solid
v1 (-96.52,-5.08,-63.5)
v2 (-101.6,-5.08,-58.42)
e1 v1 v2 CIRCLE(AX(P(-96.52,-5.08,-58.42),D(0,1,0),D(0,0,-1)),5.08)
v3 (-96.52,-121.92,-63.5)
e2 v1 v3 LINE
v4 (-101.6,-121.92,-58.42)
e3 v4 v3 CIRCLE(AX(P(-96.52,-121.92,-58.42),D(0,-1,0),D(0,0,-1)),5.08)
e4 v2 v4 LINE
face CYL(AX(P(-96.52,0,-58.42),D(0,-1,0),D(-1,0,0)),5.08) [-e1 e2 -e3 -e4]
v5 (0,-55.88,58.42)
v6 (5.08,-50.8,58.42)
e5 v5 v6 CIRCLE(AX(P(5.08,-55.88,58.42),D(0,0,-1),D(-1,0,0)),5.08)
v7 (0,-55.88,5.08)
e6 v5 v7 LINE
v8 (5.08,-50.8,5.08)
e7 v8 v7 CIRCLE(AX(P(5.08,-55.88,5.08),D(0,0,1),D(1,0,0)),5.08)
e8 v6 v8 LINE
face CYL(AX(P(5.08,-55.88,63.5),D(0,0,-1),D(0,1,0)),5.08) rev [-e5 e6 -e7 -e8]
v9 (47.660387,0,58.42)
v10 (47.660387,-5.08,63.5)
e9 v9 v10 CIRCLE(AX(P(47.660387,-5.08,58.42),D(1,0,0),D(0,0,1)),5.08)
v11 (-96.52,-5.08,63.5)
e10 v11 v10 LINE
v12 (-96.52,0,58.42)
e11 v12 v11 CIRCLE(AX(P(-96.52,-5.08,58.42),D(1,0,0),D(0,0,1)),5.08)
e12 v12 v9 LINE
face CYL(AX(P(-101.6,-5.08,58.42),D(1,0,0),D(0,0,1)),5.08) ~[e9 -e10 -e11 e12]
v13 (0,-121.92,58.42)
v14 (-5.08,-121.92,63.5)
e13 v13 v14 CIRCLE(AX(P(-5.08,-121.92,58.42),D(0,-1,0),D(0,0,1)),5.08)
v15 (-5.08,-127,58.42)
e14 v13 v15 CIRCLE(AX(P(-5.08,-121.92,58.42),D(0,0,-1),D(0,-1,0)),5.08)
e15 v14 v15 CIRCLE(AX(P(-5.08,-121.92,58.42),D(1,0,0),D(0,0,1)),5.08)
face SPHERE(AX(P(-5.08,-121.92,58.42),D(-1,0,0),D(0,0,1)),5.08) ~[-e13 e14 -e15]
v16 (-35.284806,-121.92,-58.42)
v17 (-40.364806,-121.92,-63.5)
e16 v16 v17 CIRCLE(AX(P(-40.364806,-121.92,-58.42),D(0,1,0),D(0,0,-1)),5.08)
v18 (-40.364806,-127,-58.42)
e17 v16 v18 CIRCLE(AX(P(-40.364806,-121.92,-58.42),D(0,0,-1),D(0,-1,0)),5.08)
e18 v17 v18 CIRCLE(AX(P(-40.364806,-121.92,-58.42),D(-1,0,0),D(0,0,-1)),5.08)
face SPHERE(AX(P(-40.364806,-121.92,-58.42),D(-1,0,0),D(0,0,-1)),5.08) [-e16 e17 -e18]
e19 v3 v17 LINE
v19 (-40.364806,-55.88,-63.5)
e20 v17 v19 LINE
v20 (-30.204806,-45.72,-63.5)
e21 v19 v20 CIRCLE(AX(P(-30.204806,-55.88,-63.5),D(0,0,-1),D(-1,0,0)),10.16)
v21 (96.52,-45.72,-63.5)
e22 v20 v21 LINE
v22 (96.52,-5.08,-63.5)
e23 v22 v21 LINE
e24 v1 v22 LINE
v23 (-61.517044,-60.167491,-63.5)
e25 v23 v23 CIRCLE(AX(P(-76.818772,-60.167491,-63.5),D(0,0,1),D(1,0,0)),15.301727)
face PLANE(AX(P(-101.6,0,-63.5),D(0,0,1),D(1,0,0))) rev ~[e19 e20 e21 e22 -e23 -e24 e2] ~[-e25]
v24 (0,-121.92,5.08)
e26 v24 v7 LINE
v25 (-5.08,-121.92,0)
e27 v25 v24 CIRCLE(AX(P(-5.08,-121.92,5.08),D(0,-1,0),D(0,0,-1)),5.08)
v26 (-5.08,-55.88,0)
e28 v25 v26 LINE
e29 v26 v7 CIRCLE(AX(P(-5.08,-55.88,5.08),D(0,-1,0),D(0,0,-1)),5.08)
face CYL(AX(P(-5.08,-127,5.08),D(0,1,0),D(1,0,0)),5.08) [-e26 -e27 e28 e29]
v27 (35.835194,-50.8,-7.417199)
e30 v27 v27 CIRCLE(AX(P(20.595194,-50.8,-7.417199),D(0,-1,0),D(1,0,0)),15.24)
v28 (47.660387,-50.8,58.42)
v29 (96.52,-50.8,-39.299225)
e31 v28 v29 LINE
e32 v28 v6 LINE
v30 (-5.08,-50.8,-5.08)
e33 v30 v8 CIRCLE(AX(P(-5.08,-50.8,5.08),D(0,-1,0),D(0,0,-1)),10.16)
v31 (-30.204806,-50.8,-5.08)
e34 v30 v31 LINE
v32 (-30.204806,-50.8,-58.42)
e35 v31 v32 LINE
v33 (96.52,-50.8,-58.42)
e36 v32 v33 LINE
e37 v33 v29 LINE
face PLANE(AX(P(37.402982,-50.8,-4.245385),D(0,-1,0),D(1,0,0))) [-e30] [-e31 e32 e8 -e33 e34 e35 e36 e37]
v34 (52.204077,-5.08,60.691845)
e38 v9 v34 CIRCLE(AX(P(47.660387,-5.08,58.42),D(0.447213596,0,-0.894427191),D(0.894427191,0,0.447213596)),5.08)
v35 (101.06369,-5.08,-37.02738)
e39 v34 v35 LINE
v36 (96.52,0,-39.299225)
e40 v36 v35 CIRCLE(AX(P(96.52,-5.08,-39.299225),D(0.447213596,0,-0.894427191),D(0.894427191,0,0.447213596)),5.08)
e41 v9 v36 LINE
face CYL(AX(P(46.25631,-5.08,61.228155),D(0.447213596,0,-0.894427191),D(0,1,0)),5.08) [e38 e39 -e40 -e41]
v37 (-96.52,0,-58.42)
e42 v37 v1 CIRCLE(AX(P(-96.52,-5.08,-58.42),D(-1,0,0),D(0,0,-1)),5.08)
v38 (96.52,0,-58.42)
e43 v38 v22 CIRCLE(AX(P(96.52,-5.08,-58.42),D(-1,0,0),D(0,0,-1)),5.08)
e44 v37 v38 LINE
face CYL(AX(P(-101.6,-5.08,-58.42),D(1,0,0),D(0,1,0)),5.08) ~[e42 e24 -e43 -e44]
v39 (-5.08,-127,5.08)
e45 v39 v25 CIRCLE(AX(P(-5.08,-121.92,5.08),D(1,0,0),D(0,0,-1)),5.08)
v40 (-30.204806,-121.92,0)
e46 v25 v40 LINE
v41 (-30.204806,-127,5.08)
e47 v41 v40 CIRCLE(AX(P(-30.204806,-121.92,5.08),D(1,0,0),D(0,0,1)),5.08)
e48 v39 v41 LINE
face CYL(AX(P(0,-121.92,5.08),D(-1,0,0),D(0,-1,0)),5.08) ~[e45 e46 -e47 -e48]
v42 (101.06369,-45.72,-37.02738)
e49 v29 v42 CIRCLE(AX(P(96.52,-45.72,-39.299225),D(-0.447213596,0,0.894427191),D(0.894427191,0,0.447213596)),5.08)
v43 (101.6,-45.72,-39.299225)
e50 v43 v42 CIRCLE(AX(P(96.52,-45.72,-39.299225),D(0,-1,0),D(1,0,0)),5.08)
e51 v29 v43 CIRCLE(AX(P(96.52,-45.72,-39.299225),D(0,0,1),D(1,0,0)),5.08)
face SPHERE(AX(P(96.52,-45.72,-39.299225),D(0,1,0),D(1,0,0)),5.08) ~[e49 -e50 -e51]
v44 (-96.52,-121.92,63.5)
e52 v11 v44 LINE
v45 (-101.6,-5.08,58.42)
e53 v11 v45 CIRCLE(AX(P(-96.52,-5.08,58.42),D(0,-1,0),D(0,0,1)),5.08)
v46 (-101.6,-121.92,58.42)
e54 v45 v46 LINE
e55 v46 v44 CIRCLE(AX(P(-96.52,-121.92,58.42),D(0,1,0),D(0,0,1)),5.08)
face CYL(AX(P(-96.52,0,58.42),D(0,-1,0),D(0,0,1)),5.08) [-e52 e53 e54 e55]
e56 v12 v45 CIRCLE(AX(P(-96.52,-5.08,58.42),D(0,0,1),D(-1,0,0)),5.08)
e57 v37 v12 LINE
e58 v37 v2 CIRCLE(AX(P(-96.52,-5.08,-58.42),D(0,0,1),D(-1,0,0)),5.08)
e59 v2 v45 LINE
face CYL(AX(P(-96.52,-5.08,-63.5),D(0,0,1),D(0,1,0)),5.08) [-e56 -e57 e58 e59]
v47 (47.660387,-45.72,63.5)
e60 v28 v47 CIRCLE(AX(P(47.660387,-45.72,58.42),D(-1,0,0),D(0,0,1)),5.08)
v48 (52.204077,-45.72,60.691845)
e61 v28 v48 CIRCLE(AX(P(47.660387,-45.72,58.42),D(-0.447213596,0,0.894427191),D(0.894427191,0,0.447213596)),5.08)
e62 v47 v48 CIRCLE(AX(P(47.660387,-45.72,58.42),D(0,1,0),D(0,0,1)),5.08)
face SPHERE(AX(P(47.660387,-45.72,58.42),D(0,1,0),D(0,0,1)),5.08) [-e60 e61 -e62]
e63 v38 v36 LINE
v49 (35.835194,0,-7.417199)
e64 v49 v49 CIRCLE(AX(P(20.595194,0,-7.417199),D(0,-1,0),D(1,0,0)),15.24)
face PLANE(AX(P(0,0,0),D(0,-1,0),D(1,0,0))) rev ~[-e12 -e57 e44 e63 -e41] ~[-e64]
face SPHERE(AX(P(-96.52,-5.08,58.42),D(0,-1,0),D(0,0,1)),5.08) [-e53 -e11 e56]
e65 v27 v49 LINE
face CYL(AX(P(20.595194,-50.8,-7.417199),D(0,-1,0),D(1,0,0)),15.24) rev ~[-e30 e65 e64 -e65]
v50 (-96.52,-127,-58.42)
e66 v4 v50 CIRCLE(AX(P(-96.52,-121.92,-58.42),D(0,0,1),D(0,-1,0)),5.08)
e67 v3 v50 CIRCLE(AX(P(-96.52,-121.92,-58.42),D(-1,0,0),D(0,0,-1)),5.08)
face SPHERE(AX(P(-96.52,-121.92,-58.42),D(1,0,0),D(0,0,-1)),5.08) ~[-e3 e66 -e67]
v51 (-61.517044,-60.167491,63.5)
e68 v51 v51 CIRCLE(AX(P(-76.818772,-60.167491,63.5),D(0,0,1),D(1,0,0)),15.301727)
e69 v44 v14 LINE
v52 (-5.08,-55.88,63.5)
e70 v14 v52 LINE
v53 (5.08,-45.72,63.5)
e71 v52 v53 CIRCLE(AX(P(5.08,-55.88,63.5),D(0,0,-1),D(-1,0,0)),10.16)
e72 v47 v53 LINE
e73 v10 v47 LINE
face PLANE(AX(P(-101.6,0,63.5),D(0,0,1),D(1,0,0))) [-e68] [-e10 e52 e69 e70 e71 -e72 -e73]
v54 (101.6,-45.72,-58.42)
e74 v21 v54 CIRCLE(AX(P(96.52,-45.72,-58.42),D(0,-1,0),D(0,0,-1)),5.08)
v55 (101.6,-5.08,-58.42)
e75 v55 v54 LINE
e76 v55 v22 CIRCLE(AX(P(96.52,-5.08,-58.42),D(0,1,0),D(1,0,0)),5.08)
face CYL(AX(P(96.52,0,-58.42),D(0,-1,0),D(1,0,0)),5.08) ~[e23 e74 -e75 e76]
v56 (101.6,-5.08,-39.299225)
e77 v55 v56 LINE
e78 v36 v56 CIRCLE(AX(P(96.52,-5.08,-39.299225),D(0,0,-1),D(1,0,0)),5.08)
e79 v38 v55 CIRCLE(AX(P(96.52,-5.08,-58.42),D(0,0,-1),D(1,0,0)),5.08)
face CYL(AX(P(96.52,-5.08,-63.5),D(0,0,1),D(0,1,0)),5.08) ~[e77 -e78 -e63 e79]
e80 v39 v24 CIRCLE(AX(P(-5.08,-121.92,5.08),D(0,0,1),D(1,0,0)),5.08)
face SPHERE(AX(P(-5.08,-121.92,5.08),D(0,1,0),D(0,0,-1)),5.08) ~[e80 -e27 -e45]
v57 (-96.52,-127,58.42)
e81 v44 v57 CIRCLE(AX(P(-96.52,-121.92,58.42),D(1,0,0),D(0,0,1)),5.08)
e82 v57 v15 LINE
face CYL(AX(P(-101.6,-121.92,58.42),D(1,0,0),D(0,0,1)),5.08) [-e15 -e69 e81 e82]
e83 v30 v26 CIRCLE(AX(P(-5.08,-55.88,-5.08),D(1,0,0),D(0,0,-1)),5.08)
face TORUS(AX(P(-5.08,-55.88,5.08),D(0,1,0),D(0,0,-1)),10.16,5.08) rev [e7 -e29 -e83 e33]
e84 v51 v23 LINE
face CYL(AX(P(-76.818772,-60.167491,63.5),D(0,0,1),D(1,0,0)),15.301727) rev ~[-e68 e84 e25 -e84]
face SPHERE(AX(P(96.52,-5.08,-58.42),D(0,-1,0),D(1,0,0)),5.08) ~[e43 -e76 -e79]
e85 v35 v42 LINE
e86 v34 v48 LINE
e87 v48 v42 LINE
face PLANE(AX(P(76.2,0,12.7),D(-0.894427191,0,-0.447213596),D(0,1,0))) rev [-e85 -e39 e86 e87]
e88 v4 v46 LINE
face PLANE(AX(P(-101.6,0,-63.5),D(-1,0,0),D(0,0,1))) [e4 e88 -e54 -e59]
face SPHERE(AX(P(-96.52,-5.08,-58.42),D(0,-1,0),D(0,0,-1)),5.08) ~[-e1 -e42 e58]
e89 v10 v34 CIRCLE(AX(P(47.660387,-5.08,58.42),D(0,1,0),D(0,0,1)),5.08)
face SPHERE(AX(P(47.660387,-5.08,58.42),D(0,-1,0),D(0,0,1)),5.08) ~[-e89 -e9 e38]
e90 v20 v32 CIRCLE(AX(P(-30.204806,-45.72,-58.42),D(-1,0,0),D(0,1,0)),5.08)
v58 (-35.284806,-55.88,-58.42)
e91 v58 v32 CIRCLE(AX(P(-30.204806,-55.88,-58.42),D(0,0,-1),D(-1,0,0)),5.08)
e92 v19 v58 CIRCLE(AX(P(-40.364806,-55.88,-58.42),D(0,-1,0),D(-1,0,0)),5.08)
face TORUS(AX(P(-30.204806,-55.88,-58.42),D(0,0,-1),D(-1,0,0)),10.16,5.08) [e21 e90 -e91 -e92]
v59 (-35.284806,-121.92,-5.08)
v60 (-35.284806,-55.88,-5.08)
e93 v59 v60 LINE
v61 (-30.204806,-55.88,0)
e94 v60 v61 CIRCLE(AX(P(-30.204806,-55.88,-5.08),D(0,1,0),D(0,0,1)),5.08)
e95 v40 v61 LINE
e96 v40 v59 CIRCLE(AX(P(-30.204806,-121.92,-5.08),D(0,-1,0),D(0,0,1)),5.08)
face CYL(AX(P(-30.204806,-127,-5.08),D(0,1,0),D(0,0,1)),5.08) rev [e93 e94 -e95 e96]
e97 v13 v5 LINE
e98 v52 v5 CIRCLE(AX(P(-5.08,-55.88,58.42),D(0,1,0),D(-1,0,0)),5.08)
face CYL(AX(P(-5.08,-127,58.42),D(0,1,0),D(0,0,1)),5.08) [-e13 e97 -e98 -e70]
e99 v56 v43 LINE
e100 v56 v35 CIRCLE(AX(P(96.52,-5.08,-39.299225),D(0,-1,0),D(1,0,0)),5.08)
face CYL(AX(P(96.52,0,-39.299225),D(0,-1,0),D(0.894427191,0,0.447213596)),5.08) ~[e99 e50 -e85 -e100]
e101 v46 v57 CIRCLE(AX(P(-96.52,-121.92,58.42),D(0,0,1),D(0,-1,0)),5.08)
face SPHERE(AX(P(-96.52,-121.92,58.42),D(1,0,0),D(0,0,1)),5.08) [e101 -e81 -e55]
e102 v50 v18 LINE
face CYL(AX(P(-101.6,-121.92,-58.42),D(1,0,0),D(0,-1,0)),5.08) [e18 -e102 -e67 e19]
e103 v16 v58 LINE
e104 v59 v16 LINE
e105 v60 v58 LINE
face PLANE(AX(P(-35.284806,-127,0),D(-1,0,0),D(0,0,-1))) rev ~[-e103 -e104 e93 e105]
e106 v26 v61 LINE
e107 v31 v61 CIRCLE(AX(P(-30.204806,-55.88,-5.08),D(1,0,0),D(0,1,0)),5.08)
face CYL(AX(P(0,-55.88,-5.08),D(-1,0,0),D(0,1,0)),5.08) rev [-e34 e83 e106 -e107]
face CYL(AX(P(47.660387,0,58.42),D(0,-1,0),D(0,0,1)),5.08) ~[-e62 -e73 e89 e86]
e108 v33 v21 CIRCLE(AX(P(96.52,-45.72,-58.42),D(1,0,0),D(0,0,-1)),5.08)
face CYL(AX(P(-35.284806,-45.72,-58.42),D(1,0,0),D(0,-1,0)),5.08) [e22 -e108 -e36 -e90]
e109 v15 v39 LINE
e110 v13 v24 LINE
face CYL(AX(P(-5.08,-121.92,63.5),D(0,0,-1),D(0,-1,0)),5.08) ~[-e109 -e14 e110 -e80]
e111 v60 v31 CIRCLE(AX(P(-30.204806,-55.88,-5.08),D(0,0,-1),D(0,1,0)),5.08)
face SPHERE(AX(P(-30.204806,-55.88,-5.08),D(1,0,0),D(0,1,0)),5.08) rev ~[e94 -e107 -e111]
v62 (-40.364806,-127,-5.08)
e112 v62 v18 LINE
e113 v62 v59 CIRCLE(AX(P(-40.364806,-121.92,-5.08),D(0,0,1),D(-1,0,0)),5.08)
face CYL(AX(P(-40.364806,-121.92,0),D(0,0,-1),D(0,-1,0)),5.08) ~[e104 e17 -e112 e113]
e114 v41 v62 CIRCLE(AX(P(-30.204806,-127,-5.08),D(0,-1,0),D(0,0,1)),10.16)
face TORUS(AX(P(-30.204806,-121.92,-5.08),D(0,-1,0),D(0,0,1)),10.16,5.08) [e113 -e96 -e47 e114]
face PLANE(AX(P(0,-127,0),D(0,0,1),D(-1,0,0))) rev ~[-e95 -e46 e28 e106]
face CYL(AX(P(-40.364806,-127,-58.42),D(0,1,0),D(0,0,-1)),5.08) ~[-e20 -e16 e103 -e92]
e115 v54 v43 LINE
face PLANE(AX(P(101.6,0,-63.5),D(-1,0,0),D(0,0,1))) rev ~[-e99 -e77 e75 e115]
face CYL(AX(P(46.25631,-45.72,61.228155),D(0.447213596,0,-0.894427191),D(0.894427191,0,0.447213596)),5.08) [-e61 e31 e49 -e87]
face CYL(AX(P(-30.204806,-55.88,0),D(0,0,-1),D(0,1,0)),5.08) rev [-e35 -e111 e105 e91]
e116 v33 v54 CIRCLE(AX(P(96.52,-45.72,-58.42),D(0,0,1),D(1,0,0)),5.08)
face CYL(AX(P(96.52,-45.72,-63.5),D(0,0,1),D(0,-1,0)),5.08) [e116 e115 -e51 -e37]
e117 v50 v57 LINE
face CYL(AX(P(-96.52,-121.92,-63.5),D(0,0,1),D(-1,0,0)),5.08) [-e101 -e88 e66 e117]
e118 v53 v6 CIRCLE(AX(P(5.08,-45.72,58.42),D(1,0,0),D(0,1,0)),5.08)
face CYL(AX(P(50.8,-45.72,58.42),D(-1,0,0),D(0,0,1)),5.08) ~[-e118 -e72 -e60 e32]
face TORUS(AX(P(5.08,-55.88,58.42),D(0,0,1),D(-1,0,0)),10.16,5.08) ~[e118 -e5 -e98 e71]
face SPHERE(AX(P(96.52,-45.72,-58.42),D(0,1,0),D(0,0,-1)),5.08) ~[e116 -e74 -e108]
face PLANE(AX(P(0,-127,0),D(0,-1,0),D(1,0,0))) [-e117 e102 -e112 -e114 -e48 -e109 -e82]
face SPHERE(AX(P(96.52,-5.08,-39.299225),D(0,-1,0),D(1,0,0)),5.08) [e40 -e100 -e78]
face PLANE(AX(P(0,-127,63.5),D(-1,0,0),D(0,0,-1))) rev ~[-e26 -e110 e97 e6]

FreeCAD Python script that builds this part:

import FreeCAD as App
import Part
import Sketcher
Q = App.Units.Quantity


def edges_at(feature, points):
    """Names of the edges that pass closest to the given points."""
    edges = feature.Shape.Edges
    near = lambda p: min(range(len(edges)), key=lambda i: edges[i].distToShape(Part.Vertex(*p))[0])
    return sorted({f"Edge{near(p) + 1}" for p in points})

doc = App.newDocument("Part")
body = doc.addObject("PartDesign::Body", "Body")

# Sketch on XZ plane
sketch1 = body.newObject("Sketcher::SketchObject", "Sketch")
sketch1.AttachmentSupport = (doc.getObject("XZ_Plane"), [""])
sketch1.MapMode = "FlatFace"
sketch1.addGeometry([
    Part.LineSegment(App.Vector(-102, 64, 0), App.Vector(-102, -64, 0)),
    Part.LineSegment(App.Vector(-102, -64, 0), App.Vector(102, -64, 0)),
    Part.LineSegment(App.Vector(102, -64, 0), App.Vector(102, 64, 0)),
    Part.LineSegment(App.Vector(102, 64, 0), App.Vector(-102, 64, 0)),
], False)
sketch1.addConstraint([
    Sketcher.Constraint("Coincident", 0, 2, 1, 1),
    Sketcher.Constraint("Coincident", 1, 2, 2, 1),
    Sketcher.Constraint("Coincident", 2, 2, 3, 1),
    Sketcher.Constraint("Coincident", 3, 2, 0, 1),
    Sketcher.Constraint("Vertical", 0),
    Sketcher.Constraint("Horizontal", 1),
    Sketcher.Constraint("Vertical", 2),
    Sketcher.Constraint("Horizontal", 3),
    Sketcher.Constraint("Symmetric", 0, 2, 2, 2, -1, 1),
    Sketcher.Constraint("DistanceX", 1, 1, 1, 2, Q("8 in")),
    Sketcher.Constraint("DistanceY", 0, 2, 0, 1, Q("5 in")),
])
pad1 = body.newObject("PartDesign::Pad", "Pad")
pad1.Profile = sketch1
pad1.Length = Q("5 in")

# Sketch on XZ plane
sketch2 = body.newObject("Sketcher::SketchObject", "Sketch001")
sketch2.AttachmentSupport = (doc.getObject("XZ_Plane"), [""])
sketch2.MapMode = "FlatFace"
sketch2.AttachmentOffset = App.Placement(App.Vector(0, 0, 5 * 25.4), App.Rotation())
sketch2.addGeometry([
    Part.LineSegment(App.Vector(102, 64, 0), App.Vector(0, 64, 0)),  # 0
    Part.LineSegment(App.Vector(0, 64, 0), App.Vector(0, 0, 0)),  # 1
    Part.LineSegment(App.Vector(0, 0, 0), App.Vector(-35, 0, 0)),  # 2
    Part.LineSegment(App.Vector(-35, 0, 0), App.Vector(-35, -64, 0)),  # 3
    Part.LineSegment(App.Vector(-35, -64, 0), App.Vector(102, -64, 0)),  # 4
    Part.LineSegment(App.Vector(102, -64, 0), App.Vector(102, 64, 0)),  # 5
], False)
sketch2.addConstraint([
    Sketcher.Constraint("Coincident", 0, 2, 1, 1),
    Sketcher.Constraint("Coincident", 1, 2, 2, 1),
    Sketcher.Constraint("Coincident", 2, 2, 3, 1),
    Sketcher.Constraint("Coincident", 3, 2, 4, 1),
    Sketcher.Constraint("Coincident", 4, 2, 5, 1),
    Sketcher.Constraint("Coincident", 5, 2, 0, 1),
    Sketcher.Constraint("Horizontal", 0),
    Sketcher.Constraint("Vertical", 1),
    Sketcher.Constraint("Horizontal", 2),
    Sketcher.Constraint("Vertical", 3),
    Sketcher.Constraint("Horizontal", 4),
    Sketcher.Constraint("Vertical", 5),
    Sketcher.Constraint("Coincident", 1, 2, -1, 1),
    Sketcher.Constraint("Equal", 1, 3),
    Sketcher.Constraint("DistanceX", 0, 2, 0, 1, Q("4 in")),
    Sketcher.Constraint("DistanceY", 5, 1, 5, 2, Q("5 in")),
    Sketcher.Constraint("DistanceX", 2, 2, 2, 1, 35.284806),
])
pocket1 = body.newObject("PartDesign::Pocket", "Pocket")
pocket1.Profile = sketch2
pocket1.Length = Q("3 in")
doc.recompute()

chamfer = body.newObject("PartDesign::Chamfer", "Chamfer")
chamfer.Base = (pocket1, edges_at(pocket1, [(101.6, -25.4, 63.5)]))
chamfer.ChamferType = "Two distances"
chamfer.Size = Q("2 in")
chamfer.Size2 = Q("4 in")
doc.recompute()

fillet = body.newObject("PartDesign::Fillet", "Fillet")
fillet.Base = (chamfer, ["Edge1"])
fillet.UseAllEdges = True
fillet.Radius = Q("0.2 in")

# Sketch on XZ plane
sketch3 = body.newObject("Sketcher::SketchObject", "Sketch002")
sketch3.AttachmentSupport = (doc.getObject("XZ_Plane"), [""])
sketch3.MapMode = "FlatFace"
sketch3.AttachmentOffset = App.Placement(App.Vector(0, 0, 2 * 25.4), App.Rotation())
sketch3.addGeometry(Part.Circle(App.Vector(21, -7, 0), App.Vector(0, 0, 1), 15), False)
sketch3.addConstraint([
    Sketcher.Constraint("Diameter", 0, Q("1.2 in")),
    Sketcher.Constraint("DistanceY", 0, 3, -1, 1, 7.417199),
    Sketcher.Constraint("DistanceX", -1, 1, 0, 3, 20.595194),
])
pocket2 = body.newObject("PartDesign::Pocket", "Pocket001")
pocket2.Profile = sketch3
pocket2.Type = "ThroughAll"

# Sketch on XY plane
sketch4 = body.newObject("Sketcher::SketchObject", "Sketch003")
sketch4.AttachmentSupport = (doc.getObject("XY_Plane"), [""])
sketch4.MapMode = "FlatFace"
sketch4.AttachmentOffset = App.Placement(App.Vector(0, 0, 2.5 * 25.4), App.Rotation())
sketch4.addGeometry(Part.Circle(App.Vector(-77, -60, 0), App.Vector(0, 0, 1), 15), False)
sketch4.addConstraint([
    Sketcher.Constraint("Diameter", 0, 30.603455),
    Sketcher.Constraint("DistanceX", 0, 3, -1, 1, 76.818772),
    Sketcher.Constraint("DistanceY", 0, 3, -1, 1, 60.167491),
])
pocket3 = body.newObject("PartDesign::Pocket", "Pocket002")
pocket3.Profile = sketch4
pocket3.Type = "ThroughAll"

doc.recompute()
